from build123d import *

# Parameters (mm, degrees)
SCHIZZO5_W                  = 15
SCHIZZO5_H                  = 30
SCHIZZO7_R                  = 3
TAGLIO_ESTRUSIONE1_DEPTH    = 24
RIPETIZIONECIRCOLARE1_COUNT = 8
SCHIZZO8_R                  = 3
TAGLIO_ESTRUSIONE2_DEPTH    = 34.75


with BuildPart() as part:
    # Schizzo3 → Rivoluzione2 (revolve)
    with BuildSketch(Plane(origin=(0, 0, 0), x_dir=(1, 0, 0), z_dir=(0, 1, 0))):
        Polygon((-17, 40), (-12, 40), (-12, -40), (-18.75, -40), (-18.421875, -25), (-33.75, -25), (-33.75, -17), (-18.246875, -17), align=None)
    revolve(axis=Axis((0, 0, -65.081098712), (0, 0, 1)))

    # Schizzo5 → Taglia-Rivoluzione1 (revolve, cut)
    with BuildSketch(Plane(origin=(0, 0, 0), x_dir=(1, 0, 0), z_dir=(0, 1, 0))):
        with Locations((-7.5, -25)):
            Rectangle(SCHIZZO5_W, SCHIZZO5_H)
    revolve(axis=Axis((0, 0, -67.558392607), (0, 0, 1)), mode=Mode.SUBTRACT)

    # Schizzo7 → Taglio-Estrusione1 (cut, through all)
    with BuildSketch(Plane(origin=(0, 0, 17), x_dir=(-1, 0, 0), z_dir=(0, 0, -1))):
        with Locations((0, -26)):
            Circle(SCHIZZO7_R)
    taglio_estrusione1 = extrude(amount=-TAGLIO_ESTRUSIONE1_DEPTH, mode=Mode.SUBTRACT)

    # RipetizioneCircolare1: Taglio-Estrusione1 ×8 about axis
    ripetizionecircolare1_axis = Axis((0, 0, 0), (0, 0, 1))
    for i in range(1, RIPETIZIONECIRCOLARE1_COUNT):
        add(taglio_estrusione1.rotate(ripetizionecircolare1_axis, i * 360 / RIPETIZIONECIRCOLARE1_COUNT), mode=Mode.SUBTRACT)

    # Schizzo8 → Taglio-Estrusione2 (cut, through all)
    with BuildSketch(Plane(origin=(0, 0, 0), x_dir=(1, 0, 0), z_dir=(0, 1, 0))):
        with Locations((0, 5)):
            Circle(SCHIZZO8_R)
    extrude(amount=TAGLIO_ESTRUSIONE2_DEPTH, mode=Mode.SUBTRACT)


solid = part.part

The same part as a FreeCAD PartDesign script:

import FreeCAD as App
import Part
import Sketcher
from FreeCAD import Vector
Q = App.Units.Quantity


def add_polygon(sketch, points):
    """Adds a closed chain of lines whose ends are joined by coincident constraints."""
    first, n = sketch.GeometryCount, len(points)
    for a, b in zip(points, points[1:] + points[:1]):
        sketch.addGeometry(Part.LineSegment(App.Vector(*a, 0), App.Vector(*b, 0)), False)
    for i in range(n):
        sketch.addConstraint(Sketcher.Constraint("Coincident", first + i, 2, first + (i + 1) % n, 1))

doc = App.newDocument("Part")
body = doc.addObject("PartDesign::Body", "Body")

sketch1 = body.newObject("Sketcher::SketchObject", "Sketch")
sketch1.AttachmentSupport = (doc.getObject("XZ_Plane"), [""])
sketch1.MapMode = "FlatFace"
add_polygon(sketch1, [(-12, -40), (-17, -40), (-18, 17), (-34, 17), (-34, 25), (-18, 25), (-19, 40), (-12, 40)])
sketch1.addConstraint(Sketcher.Constraint("Horizontal", 0))
sketch1.addConstraint(Sketcher.Constraint("Horizontal", 2))
sketch1.addConstraint(Sketcher.Constraint("Vertical", 3))
sketch1.addConstraint(Sketcher.Constraint("Horizontal", 4))
sketch1.addConstraint(Sketcher.Constraint("Horizontal", 6))
sketch1.addConstraint(Sketcher.Constraint("Vertical", 7))
sketch1.addConstraint(Sketcher.Constraint("Parallel", 1, 5))
sketch1.addConstraint(Sketcher.Constraint("DistanceX", 0, 2, 0, 1, Q("5 mm")))
sketch1.addConstraint(Sketcher.Constraint("DistanceY", 3, 1, 3, 2, Q("8 mm")))
sketch1.addConstraint(Sketcher.Constraint("DistanceY", 7, 2, 7, 1, Q("80 mm")))
sketch1.addConstraint(Sketcher.Constraint("DistanceX", 0, 2, -1, 1, Q("17 mm")))
sketch1.addConstraint(Sketcher.Constraint("DistanceY", 0, 2, -1, 1, Q("40 mm")))
sketch1.addConstraint(Sketcher.Constraint("DistanceY", -1, 1, 1, 2, Q("17 mm")))
sketch1.addConstraint(Sketcher.Constraint("DistanceX", 3, 2, 5, 2, Q("15 mm")))
sketch1.addConstraint(Sketcher.Constraint("DistanceX", 6, 1, 6, 2, Q("6.75 mm")))
sketch1.addConstraint(Sketcher.Constraint("DistanceX", 4, 2, 1, 2, Q("0.175 mm")))
revolution = body.newObject("PartDesign::Revolution", "Revolution")
revolution.Profile = sketch1
revolution.ReferenceAxis = (sketch1, ["V_Axis"])
revolution.Angle = 360

sketch2 = body.newObject("Sketcher::SketchObject", "Sketch001")
sketch2.AttachmentSupport = (doc.getObject("XZ_Plane"), [""])
sketch2.MapMode = "FlatFace"
add_polygon(sketch2, [(-15, 10), (-15, 40), (0, 40), (0, 10)])
sketch2.addConstraint(Sketcher.Constraint("Vertical", 0))
sketch2.addConstraint(Sketcher.Constraint("Horizontal", 1))
sketch2.addConstraint(Sketcher.Constraint("Vertical", 2))
sketch2.addConstraint(Sketcher.Constraint("Horizontal", 3))
sketch2.addConstraint(Sketcher.Constraint("PointOnObject", 1, 2, -2))
sketch2.addConstraint(Sketcher.Constraint("DistanceX", 1, 1, 1, 2, Q("15 mm")))
sketch2.addConstraint(Sketcher.Constraint("DistanceY", 0, 1, 0, 2, Q("30 mm")))
sketch2.addConstraint(Sketcher.Constraint("DistanceY", -1, 1, 0, 2, Q("40 mm")))
groove = body.newObject("PartDesign::Groove", "Groove")
groove.Profile = sketch2
groove.ReferenceAxis = (sketch2, ["V_Axis"])
groove.Angle = 360

sketch3 = body.newObject("Sketcher::SketchObject", "Sketch002")
sketch3.AttachmentSupport = (doc.getObject("XY_Plane"), [""])
sketch3.MapMode = "FlatFace"
sketch3.AttachmentOffset = App.Placement(Vector(0, 0, 17), App.Rotation())
sketch3.addGeometry(Part.Circle(Vector(0, -26, 0), Vector(0, 0, 1), 3), False)
sketch3.addConstraint(Sketcher.Constraint("PointOnObject", 0, 3, -2))
sketch3.addConstraint(Sketcher.Constraint("Diameter", 0, Q("6 mm")))
sketch3.addConstraint(Sketcher.Constraint("DistanceY", 0, 3, -1, 1, Q("26 mm")))
pocket1 = body.newObject("PartDesign::Pocket", "Pocket")
pocket1.Profile = sketch3
pocket1.Type = "ThroughAll"
pocket1.Reversed = True
doc.recompute()

polarpattern = body.newObject("PartDesign::PolarPattern", "PolarPattern")
polarpattern.Originals = [pocket1]
polarpattern.Axis = (doc.getObject("Z_Axis"), [""])
polarpattern.Angle = 360
polarpattern.Occurrences = 8
body.Tip = polarpattern

sketch4 = body.newObject("Sketcher::SketchObject", "Sketch003")
sketch4.AttachmentSupport = (doc.getObject("XZ_Plane"), [""])
sketch4.MapMode = "FlatFace"
sketch4.addGeometry(Part.Circle(Vector(0, -5, 0), Vector(0, 0, 1), 3), False)
sketch4.addConstraint(Sketcher.Constraint("PointOnObject", 0, 3, -2))
sketch4.addConstraint(Sketcher.Constraint("Diameter", 0, Q("6 mm")))
sketch4.addConstraint(Sketcher.Constraint("DistanceY", 0, 3, -1, 1, Q("5 mm")))
pocket2 = body.newObject("PartDesign::Pocket", "Pocket001")
pocket2.Profile = sketch4
pocket2.Type = "ThroughAll"

doc.recompute()
